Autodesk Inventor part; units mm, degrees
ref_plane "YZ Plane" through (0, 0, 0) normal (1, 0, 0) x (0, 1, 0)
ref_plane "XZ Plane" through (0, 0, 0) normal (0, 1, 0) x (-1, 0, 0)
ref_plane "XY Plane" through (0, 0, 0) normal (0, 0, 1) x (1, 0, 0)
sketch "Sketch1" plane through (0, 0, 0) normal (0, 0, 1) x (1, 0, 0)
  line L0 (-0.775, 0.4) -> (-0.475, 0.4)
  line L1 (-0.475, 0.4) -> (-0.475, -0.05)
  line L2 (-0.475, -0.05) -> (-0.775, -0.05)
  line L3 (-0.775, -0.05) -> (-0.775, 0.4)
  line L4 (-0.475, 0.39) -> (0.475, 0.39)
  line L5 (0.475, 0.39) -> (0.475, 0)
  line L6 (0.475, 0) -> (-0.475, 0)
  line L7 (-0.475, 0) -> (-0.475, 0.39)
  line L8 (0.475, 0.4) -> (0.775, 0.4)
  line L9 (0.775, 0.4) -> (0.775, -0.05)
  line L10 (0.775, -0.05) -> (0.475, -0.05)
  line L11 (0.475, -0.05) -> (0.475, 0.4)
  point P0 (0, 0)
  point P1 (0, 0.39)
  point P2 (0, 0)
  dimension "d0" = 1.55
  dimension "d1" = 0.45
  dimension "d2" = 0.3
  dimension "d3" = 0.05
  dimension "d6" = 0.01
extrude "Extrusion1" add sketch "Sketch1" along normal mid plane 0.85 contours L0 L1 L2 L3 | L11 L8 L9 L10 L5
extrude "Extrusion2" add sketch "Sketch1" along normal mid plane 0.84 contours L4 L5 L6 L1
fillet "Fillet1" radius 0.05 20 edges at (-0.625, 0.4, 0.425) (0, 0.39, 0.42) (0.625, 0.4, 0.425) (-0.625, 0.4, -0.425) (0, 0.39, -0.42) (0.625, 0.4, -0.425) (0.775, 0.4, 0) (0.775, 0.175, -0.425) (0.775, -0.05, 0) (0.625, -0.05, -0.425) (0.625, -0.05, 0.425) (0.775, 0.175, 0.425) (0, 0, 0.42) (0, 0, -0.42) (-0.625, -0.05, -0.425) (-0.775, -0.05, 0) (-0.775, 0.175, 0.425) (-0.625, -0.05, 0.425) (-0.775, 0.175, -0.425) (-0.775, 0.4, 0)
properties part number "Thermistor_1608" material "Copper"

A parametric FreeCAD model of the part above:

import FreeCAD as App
import Part
import Sketcher
from FreeCAD import Vector


def edges_at(feature, points):
    """Names of the edges that pass closest to the given points."""
    edges = feature.Shape.Edges
    near = lambda p: min(range(len(edges)), key=lambda i: edges[i].distToShape(Part.Vertex(*p))[0])
    return sorted({f"Edge{near(p) + 1}" for p in points})

doc = App.newDocument("Part")
body = doc.addObject("PartDesign::Body", "Body")
body.AllowCompound = True

# Sketch on XY plane
sketch1 = doc.addObject("Sketcher::SketchObject", "Sketch")
body.addObject(sketch1)
sketch1.AttachmentSupport = (doc.XY_Plane, [""])
sketch1.MapMode = "FlatFace"
sketch1.addGeometry([
    Part.LineSegment(Vector(-0.475, 0.4, 0), Vector(-0.775, 0.4, 0)),  # 0
    Part.LineSegment(Vector(-0.775, 0.4, 0), Vector(-0.775, -0.05, 0)),  # 1
    Part.LineSegment(Vector(-0.775, -0.05, 0), Vector(-0.475, -0.05, 0)),  # 2
    Part.LineSegment(Vector(-0.475, -0.05, 0), Vector(-0.475, 0.4, 0)),  # 3
    Part.LineSegment(Vector(0.475, 0.4, 0), Vector(0.475, -0.05, 0)),  # 4
    Part.LineSegment(Vector(0.475, -0.05, 0), Vector(0.775, -0.05, 0)),  # 5
    Part.LineSegment(Vector(0.775, -0.05, 0), Vector(0.775, 0.4, 0)),  # 6
    Part.LineSegment(Vector(0.775, 0.4, 0), Vector(0.475, 0.4, 0)),  # 7
], False)
sketch1.addConstraint([
    Sketcher.Constraint("Coincident", 0, 2, 1, 1),
    Sketcher.Constraint("Coincident", 1, 2, 2, 1),
    Sketcher.Constraint("Coincident", 2, 2, 3, 1),
    Sketcher.Constraint("Coincident", 3, 2, 0, 1),
    Sketcher.Constraint("Coincident", 4, 2, 5, 1),
    Sketcher.Constraint("Coincident", 5, 2, 6, 1),
    Sketcher.Constraint("Coincident", 6, 2, 7, 1),
    Sketcher.Constraint("Coincident", 7, 2, 4, 1),
    Sketcher.Constraint("Horizontal", 0),
    Sketcher.Constraint("Vertical", 1),
    Sketcher.Constraint("Horizontal", 2),
    Sketcher.Constraint("Vertical", 3),
    Sketcher.Constraint("Vertical", 4),
    Sketcher.Constraint("Horizontal", 5),
    Sketcher.Constraint("Vertical", 6),
    Sketcher.Constraint("Horizontal", 7),
    Sketcher.Constraint("Symmetric", 2, 2, 4, 2, -2),
    Sketcher.Constraint("Symmetric", 0, 2, 6, 2, -2),
    Sketcher.Constraint("DistanceX", 0, 2, 0, 1, 0.3),
    Sketcher.Constraint("DistanceY", 1, 2, 1, 1, 0.45),
    Sketcher.Constraint("DistanceY", 1, 2, -1, 1, 0.05),
    Sketcher.Constraint("DistanceX", 1, 2, 5, 2, 1.55),
])
pad1 = doc.addObject("PartDesign::Pad", "Pad")
body.addObject(pad1)
pad1.Profile = sketch1
pad1.Length = 0.85
pad1.Midplane = True

# Sketch on XY plane
sketch2 = doc.addObject("Sketcher::SketchObject", "Sketch001")
body.addObject(sketch2)
sketch2.AttachmentSupport = (doc.XY_Plane, [""])
sketch2.MapMode = "FlatFace"
sketch2.addGeometry([
    Part.LineSegment(Vector(0.475, 0.39, 0), Vector(-0.475, 0.39, 0)),
    Part.LineSegment(Vector(-0.475, 0.39, 0), Vector(-0.475, 0, 0)),
    Part.LineSegment(Vector(-0.475, 0, 0), Vector(0.475, 0, 0)),
    Part.LineSegment(Vector(0.475, 0, 0), Vector(0.475, 0.39, 0)),
], False)
sketch2.addConstraint([
    Sketcher.Constraint("Coincident", 0, 2, 1, 1),
    Sketcher.Constraint("Coincident", 1, 2, 2, 1),
    Sketcher.Constraint("Coincident", 2, 2, 3, 1),
    Sketcher.Constraint("Coincident", 3, 2, 0, 1),
    Sketcher.Constraint("Horizontal", 0),
    Sketcher.Constraint("Vertical", 1),
    Sketcher.Constraint("Horizontal", 2),
    Sketcher.Constraint("Vertical", 3),
    Sketcher.Constraint("Symmetric", 1, 2, 2, 2, -1, 1),
    Sketcher.Constraint("DistanceX", 0, 2, 0, 1, 0.95),
    Sketcher.Constraint("DistanceY", 1, 2, 1, 1, 0.39),
])
pad2 = doc.addObject("PartDesign::Pad", "Pad001")
body.addObject(pad2)
pad2.Profile = sketch2
pad2.Length = 0.84
pad2.Midplane = True
doc.recompute()

fillet = doc.addObject("PartDesign::Fillet", "Fillet")
body.addObject(fillet)
fillet.Base = (pad2, edges_at(pad2, [
    (-0.625, 0.4, 0.425),
    (0, 0.39, 0.42),
    (0.625, 0.4, 0.425),
    (-0.625, 0.4, -0.425),
    (0, 0.39, -0.42),
    (0.625, 0.4, -0.425),
    (0.775, 0.4, 0),
    (0.775, 0.175, -0.425),
    (0.775, -0.05, 0),
    (0.625, -0.05, -0.425),
    (0.625, -0.05, 0.425),
    (0.775, 0.175, 0.425),
    (0, 0, 0.42),
    (0, 0, -0.42),
    (-0.625, -0.05, -0.425),
    (-0.775, -0.05, 0),
    (-0.775, 0.175, 0.425),
    (-0.625, -0.05, 0.425),
    (-0.775, 0.175, -0.425),
    (-0.775, 0.4, 0),
]))
fillet.Radius = 0.05

doc.recompute()
